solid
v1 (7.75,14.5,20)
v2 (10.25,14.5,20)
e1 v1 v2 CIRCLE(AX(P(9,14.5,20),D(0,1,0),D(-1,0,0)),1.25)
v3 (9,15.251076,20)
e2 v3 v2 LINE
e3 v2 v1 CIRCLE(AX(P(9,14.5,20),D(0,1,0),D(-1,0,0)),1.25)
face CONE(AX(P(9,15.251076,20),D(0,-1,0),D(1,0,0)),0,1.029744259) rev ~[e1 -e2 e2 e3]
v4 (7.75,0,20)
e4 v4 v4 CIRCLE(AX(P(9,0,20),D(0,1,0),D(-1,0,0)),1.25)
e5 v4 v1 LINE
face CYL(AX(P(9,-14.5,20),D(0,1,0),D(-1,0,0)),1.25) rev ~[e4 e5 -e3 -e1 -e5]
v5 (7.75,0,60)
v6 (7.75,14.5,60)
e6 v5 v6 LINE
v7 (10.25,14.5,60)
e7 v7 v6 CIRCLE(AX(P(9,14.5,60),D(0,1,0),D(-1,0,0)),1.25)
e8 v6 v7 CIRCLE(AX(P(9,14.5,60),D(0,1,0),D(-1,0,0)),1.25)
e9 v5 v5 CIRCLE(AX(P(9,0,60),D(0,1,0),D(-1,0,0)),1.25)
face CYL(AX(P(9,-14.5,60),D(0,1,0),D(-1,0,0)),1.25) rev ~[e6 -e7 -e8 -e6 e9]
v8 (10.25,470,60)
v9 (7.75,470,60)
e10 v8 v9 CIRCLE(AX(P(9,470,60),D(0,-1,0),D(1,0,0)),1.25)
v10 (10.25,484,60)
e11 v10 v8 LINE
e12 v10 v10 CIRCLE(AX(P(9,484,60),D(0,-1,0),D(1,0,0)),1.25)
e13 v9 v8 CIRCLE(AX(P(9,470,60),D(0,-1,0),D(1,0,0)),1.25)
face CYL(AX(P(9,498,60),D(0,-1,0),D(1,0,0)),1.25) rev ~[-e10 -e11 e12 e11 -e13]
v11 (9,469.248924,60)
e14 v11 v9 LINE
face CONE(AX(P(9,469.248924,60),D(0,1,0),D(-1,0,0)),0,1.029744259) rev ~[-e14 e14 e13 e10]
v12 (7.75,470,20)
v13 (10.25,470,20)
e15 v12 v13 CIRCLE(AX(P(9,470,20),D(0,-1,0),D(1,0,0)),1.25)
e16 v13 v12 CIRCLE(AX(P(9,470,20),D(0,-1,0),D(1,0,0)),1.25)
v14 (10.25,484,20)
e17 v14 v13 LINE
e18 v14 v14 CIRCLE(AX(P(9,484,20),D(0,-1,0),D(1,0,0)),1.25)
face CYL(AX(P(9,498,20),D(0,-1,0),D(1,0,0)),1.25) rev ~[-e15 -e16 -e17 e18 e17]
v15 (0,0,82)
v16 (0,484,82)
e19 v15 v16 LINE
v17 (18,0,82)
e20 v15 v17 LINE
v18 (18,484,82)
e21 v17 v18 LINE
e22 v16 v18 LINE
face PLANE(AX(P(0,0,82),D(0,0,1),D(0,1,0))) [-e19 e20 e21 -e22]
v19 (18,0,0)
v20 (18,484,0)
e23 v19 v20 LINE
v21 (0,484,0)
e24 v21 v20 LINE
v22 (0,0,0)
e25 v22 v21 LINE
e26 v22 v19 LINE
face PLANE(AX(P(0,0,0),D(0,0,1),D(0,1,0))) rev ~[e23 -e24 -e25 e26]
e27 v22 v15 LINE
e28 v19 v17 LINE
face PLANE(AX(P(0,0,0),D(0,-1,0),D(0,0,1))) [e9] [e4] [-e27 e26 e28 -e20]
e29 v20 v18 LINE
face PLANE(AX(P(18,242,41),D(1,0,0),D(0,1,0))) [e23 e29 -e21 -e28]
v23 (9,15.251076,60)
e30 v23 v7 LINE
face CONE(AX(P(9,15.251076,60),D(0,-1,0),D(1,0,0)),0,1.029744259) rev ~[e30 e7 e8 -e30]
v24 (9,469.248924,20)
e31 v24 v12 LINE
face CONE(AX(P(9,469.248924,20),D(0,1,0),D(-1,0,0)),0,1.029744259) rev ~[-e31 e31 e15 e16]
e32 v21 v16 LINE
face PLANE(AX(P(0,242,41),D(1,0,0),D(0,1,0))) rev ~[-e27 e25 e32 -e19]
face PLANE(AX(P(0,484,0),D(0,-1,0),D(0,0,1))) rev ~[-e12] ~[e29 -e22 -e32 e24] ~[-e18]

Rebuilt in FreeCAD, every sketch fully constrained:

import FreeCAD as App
import Part
import Sketcher

V = App.Vector
Q = App.Units.Quantity

doc = App.newDocument("Part")
body = doc.addObject("PartDesign::Body", "Body")

sketch1 = body.newObject("Sketcher::SketchObject", "Sketch")
sketch1.AttachmentSupport = (doc.getObject("YZ_Plane"), [""])
sketch1.MapMode = "FlatFace"
sketch1.addGeometry([
    Part.LineSegment(V(0, 82, 0), V(0, 0, 0)),
    Part.LineSegment(V(0, 0, 0), V(484, 0, 0)),
    Part.LineSegment(V(484, 0, 0), V(484, 82, 0)),
    Part.LineSegment(V(484, 82, 0), V(0, 82, 0)),
], False)
sketch1.addConstraint([
    Sketcher.Constraint("Coincident", 0, 2, 1, 1),
    Sketcher.Constraint("Coincident", 1, 2, 2, 1),
    Sketcher.Constraint("Coincident", 2, 2, 3, 1),
    Sketcher.Constraint("Coincident", 3, 2, 0, 1),
    Sketcher.Constraint("Vertical", 0),
    Sketcher.Constraint("Horizontal", 1),
    Sketcher.Constraint("Vertical", 2),
    Sketcher.Constraint("Horizontal", 3),
    Sketcher.Constraint("Coincident", 0, 2, -1, 1),
    Sketcher.Constraint("DistanceX", 1, 1, 1, 2, Q("484 mm")),
    Sketcher.Constraint("DistanceY", 0, 2, 0, 1, Q("82 mm")),
])
pad1 = body.newObject("PartDesign::Pad", "Pad")
pad1.Profile = sketch1
pad1.Length = 18

sketch2 = body.newObject("Sketcher::SketchObject", "Sketch001")
sketch2.AttachmentSupport = (doc.getObject("XZ_Plane"), [""])
sketch2.MapMode = "FlatFace"
sketch2.addGeometry([
    Part.Circle(V(9, 20, 0), V(0, 0, 1), 1.2),
    Part.Circle(V(9, 60, 0), V(0, 0, 1), 1.2),
], False)
sketch2.addConstraint([
    Sketcher.Constraint("Equal", 0, 1),
    Sketcher.Constraint("Vertical", 0, 3, 1, 3),
    Sketcher.Constraint("Diameter", 0, Q("2.5 mm")),
    Sketcher.Constraint("DistanceX", -1, 1, 0, 3, Q("9 mm")),
    Sketcher.Constraint("DistanceY", -1, 1, 0, 3, Q("20 mm")),
    Sketcher.Constraint("DistanceY", -1, 1, 1, 3, Q("60 mm")),
])
doc.recompute()
hole = body.newObject("PartDesign::Hole", "Hole")
hole.Profile = sketch2
hole.ThreadType = "None"
hole.Diameter = 2.5
hole.DepthType = "Dimension"
hole.Depth = 14.5
hole.DrillPoint = "Angled"
hole.DrillPointAngle = 118

sketch3 = body.newObject("Sketcher::SketchObject", "Sketch002")
sketch3.AttachmentSupport = (doc.getObject("XZ_Plane"), [""])
sketch3.MapMode = "FlatFace"
sketch3.AttachmentOffset = App.Placement(V(0, 0, -484), App.Rotation())
sketch3.addGeometry([
    Part.Circle(V(9, 60, 0), V(0, 0, 1), 1.2),
    Part.Circle(V(9, 20, 0), V(0, 0, 1), 1.2),
], False)
sketch3.addConstraint([
    Sketcher.Constraint("Equal", 0, 1),
    Sketcher.Constraint("Vertical", 0, 3, 1, 3),
    Sketcher.Constraint("Diameter", 0, Q("2.5 mm")),
    Sketcher.Constraint("DistanceX", -1, 1, 0, 3, Q("9 mm")),
    Sketcher.Constraint("DistanceY", -1, 1, 0, 3, Q("60 mm")),
    Sketcher.Constraint("DistanceY", -1, 1, 1, 3, Q("20 mm")),
])
doc.recompute()
hole2 = body.newObject("PartDesign::Hole", "Hole001")
hole2.Profile = sketch3
hole2.ThreadType = "None"
hole2.Diameter = 2.5
hole2.DepthType = "Dimension"
hole2.Depth = 14
hole2.DrillPoint = "Angled"
hole2.DrillPointAngle = 118
hole2.Reversed = True

doc.recompute()
